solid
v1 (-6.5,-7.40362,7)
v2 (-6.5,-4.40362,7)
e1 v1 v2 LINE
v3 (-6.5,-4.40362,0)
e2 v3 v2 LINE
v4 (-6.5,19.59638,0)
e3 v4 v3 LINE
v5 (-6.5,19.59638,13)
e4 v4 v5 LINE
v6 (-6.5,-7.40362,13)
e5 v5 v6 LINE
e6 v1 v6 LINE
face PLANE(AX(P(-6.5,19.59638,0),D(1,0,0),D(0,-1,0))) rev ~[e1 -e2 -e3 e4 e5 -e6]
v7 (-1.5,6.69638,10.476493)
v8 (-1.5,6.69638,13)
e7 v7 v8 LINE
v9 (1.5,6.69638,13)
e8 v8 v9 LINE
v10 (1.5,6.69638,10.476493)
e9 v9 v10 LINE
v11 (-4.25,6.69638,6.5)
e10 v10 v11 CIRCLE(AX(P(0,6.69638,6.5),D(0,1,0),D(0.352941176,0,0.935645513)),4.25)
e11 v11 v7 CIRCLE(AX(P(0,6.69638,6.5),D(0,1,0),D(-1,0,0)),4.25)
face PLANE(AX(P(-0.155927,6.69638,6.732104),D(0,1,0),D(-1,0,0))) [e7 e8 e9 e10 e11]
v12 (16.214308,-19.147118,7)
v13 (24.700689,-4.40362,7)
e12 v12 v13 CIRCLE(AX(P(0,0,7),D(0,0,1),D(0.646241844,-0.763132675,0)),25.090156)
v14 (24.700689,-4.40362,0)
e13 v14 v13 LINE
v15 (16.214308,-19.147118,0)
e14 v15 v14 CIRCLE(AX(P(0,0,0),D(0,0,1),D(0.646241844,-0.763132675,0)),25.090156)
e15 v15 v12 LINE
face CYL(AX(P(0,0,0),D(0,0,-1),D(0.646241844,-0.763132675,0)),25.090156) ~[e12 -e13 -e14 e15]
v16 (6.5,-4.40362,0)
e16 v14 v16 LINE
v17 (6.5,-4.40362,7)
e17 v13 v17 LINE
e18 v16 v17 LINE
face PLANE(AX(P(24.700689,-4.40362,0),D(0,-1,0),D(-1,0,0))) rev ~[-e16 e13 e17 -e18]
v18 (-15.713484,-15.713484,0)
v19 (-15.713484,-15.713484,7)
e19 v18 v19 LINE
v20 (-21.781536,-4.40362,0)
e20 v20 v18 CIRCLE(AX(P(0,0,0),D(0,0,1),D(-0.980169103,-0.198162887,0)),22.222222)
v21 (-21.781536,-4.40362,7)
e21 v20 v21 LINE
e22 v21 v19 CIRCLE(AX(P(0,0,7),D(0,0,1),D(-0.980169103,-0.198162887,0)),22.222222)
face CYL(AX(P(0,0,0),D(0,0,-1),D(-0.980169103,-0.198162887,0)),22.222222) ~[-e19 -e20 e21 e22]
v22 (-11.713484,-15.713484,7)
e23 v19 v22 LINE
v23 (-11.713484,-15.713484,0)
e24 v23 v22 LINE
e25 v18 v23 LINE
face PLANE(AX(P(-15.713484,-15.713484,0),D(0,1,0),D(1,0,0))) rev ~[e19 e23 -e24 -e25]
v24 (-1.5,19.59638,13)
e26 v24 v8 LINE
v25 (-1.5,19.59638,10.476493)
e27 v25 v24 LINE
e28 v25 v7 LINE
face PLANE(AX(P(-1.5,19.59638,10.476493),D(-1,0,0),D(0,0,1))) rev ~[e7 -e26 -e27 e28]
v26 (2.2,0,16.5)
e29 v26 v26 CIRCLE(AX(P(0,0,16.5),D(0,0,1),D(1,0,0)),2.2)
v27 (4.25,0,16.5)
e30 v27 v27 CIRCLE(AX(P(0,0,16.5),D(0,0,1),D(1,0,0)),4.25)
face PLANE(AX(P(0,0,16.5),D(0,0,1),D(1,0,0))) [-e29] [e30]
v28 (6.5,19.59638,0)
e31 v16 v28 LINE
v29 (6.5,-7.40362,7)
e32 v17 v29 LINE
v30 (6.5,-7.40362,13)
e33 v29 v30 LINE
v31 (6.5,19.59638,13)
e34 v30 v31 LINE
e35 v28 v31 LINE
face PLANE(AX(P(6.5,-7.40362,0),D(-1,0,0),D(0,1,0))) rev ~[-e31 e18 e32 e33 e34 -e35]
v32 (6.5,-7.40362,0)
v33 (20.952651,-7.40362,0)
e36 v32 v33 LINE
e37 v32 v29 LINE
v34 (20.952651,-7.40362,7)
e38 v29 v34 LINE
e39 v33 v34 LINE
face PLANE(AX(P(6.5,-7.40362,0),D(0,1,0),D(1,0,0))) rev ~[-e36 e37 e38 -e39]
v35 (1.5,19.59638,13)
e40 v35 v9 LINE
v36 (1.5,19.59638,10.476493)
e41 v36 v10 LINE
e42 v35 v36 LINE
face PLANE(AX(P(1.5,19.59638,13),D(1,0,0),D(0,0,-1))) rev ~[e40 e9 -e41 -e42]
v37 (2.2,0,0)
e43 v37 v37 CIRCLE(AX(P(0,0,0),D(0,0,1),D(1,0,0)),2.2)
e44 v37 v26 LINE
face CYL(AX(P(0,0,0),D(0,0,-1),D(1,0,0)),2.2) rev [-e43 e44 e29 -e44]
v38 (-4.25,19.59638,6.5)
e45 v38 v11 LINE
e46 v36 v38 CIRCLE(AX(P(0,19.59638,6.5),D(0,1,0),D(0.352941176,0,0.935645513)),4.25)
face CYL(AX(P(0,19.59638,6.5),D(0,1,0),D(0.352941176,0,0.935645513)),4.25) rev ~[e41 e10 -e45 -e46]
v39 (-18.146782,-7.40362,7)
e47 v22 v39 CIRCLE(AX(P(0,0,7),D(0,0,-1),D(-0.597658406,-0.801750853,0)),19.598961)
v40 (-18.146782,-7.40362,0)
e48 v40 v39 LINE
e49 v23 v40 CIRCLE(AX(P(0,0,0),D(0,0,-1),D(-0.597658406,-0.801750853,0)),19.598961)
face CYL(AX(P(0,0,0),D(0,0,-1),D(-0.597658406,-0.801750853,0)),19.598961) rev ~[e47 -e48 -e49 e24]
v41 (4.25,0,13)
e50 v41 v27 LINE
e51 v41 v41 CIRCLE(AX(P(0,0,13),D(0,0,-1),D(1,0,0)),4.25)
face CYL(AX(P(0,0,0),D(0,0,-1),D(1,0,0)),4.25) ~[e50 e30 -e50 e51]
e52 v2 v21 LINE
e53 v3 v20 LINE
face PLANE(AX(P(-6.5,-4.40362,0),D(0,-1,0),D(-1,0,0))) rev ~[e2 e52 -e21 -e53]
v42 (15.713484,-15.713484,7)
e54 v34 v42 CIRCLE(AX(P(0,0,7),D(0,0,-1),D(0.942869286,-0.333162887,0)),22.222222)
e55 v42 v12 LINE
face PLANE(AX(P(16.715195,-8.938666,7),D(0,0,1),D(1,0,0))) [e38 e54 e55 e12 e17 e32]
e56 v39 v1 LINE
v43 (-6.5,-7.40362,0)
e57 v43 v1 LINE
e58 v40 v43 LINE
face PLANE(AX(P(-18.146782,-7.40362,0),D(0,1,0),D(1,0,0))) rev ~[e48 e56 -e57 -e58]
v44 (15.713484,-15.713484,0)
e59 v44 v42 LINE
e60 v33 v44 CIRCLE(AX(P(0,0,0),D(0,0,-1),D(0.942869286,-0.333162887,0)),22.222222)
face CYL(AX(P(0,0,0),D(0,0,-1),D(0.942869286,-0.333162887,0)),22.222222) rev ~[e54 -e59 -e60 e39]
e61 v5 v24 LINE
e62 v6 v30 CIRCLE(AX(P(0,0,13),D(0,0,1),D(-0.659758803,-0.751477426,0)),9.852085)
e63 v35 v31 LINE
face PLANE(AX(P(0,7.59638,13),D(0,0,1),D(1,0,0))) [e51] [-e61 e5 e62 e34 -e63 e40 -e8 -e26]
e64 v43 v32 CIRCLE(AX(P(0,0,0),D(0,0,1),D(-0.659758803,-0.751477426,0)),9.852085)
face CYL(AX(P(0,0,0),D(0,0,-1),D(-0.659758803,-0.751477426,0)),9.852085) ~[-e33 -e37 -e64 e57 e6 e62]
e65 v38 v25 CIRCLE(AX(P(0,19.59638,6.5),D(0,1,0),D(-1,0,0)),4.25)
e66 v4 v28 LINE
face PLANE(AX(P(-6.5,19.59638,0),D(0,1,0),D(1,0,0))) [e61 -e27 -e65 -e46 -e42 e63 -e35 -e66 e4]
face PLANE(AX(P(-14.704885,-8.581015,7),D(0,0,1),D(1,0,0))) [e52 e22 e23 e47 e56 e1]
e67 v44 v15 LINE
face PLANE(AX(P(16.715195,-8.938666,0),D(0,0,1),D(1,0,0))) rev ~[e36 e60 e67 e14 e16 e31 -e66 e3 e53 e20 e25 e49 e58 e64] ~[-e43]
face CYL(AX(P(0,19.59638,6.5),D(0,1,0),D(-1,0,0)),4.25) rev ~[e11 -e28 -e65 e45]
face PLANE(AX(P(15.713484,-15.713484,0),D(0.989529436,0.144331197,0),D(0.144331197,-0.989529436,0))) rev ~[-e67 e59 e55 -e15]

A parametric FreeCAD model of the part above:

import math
import FreeCAD as App
import Part
import Sketcher

doc = App.newDocument("Part")
body = doc.addObject("PartDesign::Body", "Body")

sketch1 = body.newObject("Sketcher::SketchObject", "Sketch")
sketch1.AttachmentSupport = (doc.getObject("XY_Plane"), [""])
sketch1.MapMode = "FlatFace"
sketch1.addGeometry([
    Part.LineSegment(App.Vector(-6, 20, 0), App.Vector(-6, -7, 0)),
    Part.ArcOfCircle(Part.Circle(App.Vector(0, 0, 0), App.Vector(0, 0, 1), 10), math.radians(-131), math.radians(-49)),
    Part.LineSegment(App.Vector(6, -7, 0), App.Vector(6, 20, 0)),
    Part.LineSegment(App.Vector(6, 20, 0), App.Vector(-6, 20, 0)),
], False)
sketch1.addConstraint([
    Sketcher.Constraint("Coincident", 0, 2, 1, 1),
    Sketcher.Constraint("Coincident", 1, 2, 2, 1),
    Sketcher.Constraint("Coincident", 2, 2, 3, 1),
    Sketcher.Constraint("Coincident", 3, 2, 0, 1),
    Sketcher.Constraint("Vertical", 0),
    Sketcher.Constraint("Vertical", 2),
    Sketcher.Constraint("Horizontal", 3),
    Sketcher.Constraint("Coincident", 1, 3, -1, 1),
    Sketcher.Constraint("Horizontal", 0, 2, 1, 2),
    Sketcher.Constraint("DistanceX", 3, 2, 3, 1, 13.0),
    Sketcher.Constraint("DistanceY", 0, 2, 0, 1, 27.0),
    Sketcher.Constraint("Radius", 1, 9.852085),
])
pad1 = body.newObject("PartDesign::Pad", "Pad")
pad1.Profile = sketch1
pad1.Length = 13

sketch2 = body.newObject("Sketcher::SketchObject", "Sketch001")
sketch2.AttachmentSupport = (doc.getObject("XY_Plane"), [""])
sketch2.MapMode = "FlatFace"
sketch2.addGeometry(Part.Circle(App.Vector(0, 0, 0), App.Vector(0, 0, 1), 2.2), False)
sketch2.addConstraint([
    Sketcher.Constraint("Coincident", 0, 3, -1, 1),
    Sketcher.Constraint("Diameter", 0, 4.4),
])
pocket1 = body.newObject("PartDesign::Pocket", "Pocket")
pocket1.Profile = sketch2
pocket1.Type = "ThroughAll"
pocket1.Reversed = True

sketch3 = body.newObject("Sketcher::SketchObject", "Sketch002")
sketch3.AttachmentSupport = (doc.getObject("XZ_Plane"), [""])
sketch3.MapMode = "FlatFace"
sketch3.AttachmentOffset = App.Placement(App.Vector(0, 0, -19.59638), App.Rotation())
sketch3.addGeometry([
    Part.ArcOfCircle(Part.Circle(App.Vector(0, 6.5, 0), App.Vector(0, 0, 1), 4.2), math.radians(180), math.radians(429)),
    Part.ArcOfCircle(Part.Circle(App.Vector(0, 6.5, 0), App.Vector(0, 0, 1), 4.2), math.radians(111), math.radians(180)),
    Part.LineSegment(App.Vector(-1.5, 10.5, 0), App.Vector(-1.5, 13, 0)),
    Part.LineSegment(App.Vector(-1.5, 13, 0), App.Vector(1.5, 13, 0)),
    Part.LineSegment(App.Vector(1.5, 13, 0), App.Vector(1.5, 10.5, 0)),
], False)
sketch3.addConstraint([
    Sketcher.Constraint("Tangent", 0, 1, 1, 2),
    Sketcher.Constraint("Coincident", 1, 1, 2, 1),
    Sketcher.Constraint("Coincident", 2, 2, 3, 1),
    Sketcher.Constraint("Coincident", 3, 2, 4, 1),
    Sketcher.Constraint("Coincident", 4, 2, 0, 2),
    Sketcher.Constraint("Vertical", 2),
    Sketcher.Constraint("Horizontal", 3),
    Sketcher.Constraint("Vertical", 4),
    Sketcher.Constraint("Equal", 0, 1),
    Sketcher.Constraint("Symmetric", 1, 1, 4, 2, -2),
    Sketcher.Constraint("Horizontal", 1, 3, 0, 1),
    Sketcher.Constraint("DistanceX", 3, 1, 3, 2, 3.0),
    Sketcher.Constraint("Radius", 0, 4.25),
    Sketcher.Constraint("DistanceY", -1, 1, 2, 2, 13.0),
    Sketcher.Constraint("DistanceY", -1, 1, 0, 3, 6.5),
])
pocket2 = body.newObject("PartDesign::Pocket", "Pocket001")
pocket2.Profile = sketch3
pocket2.Length = 12.9
pocket2.Reversed = True

sketch4 = body.newObject("Sketcher::SketchObject", "Sketch003")
sketch4.AttachmentSupport = (doc.getObject("XY_Plane"), [""])
sketch4.MapMode = "FlatFace"
sketch4.addGeometry([
    Part.LineSegment(App.Vector(24.7, -4.4, 0), App.Vector(6.5, -4.4, 0)),
    Part.LineSegment(App.Vector(6.5, -4.4, 0), App.Vector(6.5, -7.4, 0)),
    Part.LineSegment(App.Vector(6.5, -7.4, 0), App.Vector(21, -7.4, 0)),
    Part.ArcOfCircle(Part.Circle(App.Vector(0, 0, 0), App.Vector(0, 0, 1), 22.2), math.radians(-45), math.radians(-19)),
    Part.LineSegment(App.Vector(15.7, -15.7, 0), App.Vector(16.2, -19.1, 0)),
    Part.ArcOfCircle(Part.Circle(App.Vector(0, 0, 0), App.Vector(0, 0, 1), 25.1), math.radians(-50), math.radians(-10)),
    Part.LineSegment(App.Vector(-6.5, -7.4, 0), App.Vector(-6.5, -4.4, 0)),
    Part.LineSegment(App.Vector(-6.5, -4.4, 0), App.Vector(-21.8, -4.4, 0)),
    Part.ArcOfCircle(Part.Circle(App.Vector(0, 0, 0), App.Vector(0, 0, 1), 22.2), math.radians(-169), math.radians(-135)),
    Part.LineSegment(App.Vector(-15.7, -15.7, 0), App.Vector(-11.7, -15.7, 0)),
    Part.ArcOfCircle(Part.Circle(App.Vector(0, 0, 0), App.Vector(0, 0, 1), 19.6), math.radians(-158), math.radians(-127)),
    Part.LineSegment(App.Vector(-18.1, -7.4, 0), App.Vector(-6.5, -7.4, 0)),
], False)
sketch4.addConstraint([
    Sketcher.Constraint("Coincident", 0, 2, 1, 1),
    Sketcher.Constraint("Coincident", 1, 2, 2, 1),
    Sketcher.Constraint("Coincident", 2, 2, 3, 2),
    Sketcher.Constraint("Coincident", 3, 1, 4, 1),
    Sketcher.Constraint("Coincident", 4, 2, 5, 1),
    Sketcher.Constraint("Coincident", 5, 2, 0, 1),
    Sketcher.Constraint("Coincident", 6, 2, 7, 1),
    Sketcher.Constraint("Coincident", 7, 2, 8, 1),
    Sketcher.Constraint("Coincident", 8, 2, 9, 1),
    Sketcher.Constraint("Coincident", 9, 2, 10, 2),
    Sketcher.Constraint("Coincident", 10, 1, 11, 1),
    Sketcher.Constraint("Coincident", 11, 2, 6, 1),
    Sketcher.Constraint("Horizontal", 0),
    Sketcher.Constraint("Vertical", 1),
    Sketcher.Constraint("Horizontal", 2),
    Sketcher.Constraint("Vertical", 6),
    Sketcher.Constraint("Horizontal", 7),
    Sketcher.Constraint("Horizontal", 9),
    Sketcher.Constraint("Horizontal", 11),
    Sketcher.Constraint("Coincident", 3, 3, -1, 1),
    Sketcher.Constraint("Coincident", 5, 3, -1, 1),
    Sketcher.Constraint("Coincident", 8, 3, -1, 1),
    Sketcher.Constraint("Coincident", 10, 3, -1, 1),
    Sketcher.Constraint("Equal", 3, 8),
    Sketcher.Constraint("Symmetric", 0, 2, 6, 2, -2),
    Sketcher.Constraint("Horizontal", 3, 1, 8, 2),
    Sketcher.Constraint("Horizontal", 2, 2, 10, 1),
    Sketcher.Constraint("DistanceX", 9, 1, 9, 2, 4.0),
    Sketcher.Constraint("DistanceY", 1, 2, 1, 1, 3.0),
    Sketcher.Constraint("DistanceX", 6, 2, 0, 2, 13.0),
    Sketcher.Constraint("Radius", 10, 19.598961),
    Sketcher.Constraint("Radius", 3, 22.222222),
    Sketcher.Constraint("Radius", 5, 25.090156),
    Sketcher.Constraint("DistanceX", 0, 2, 0, 1, 18.200689),
    Sketcher.Constraint("DistanceX", -1, 1, 4, 2, 16.214308),
])
pad2 = body.newObject("PartDesign::Pad", "Pad001")
pad2.Profile = sketch4
pad2.Length = 7

sketch5 = body.newObject("Sketcher::SketchObject", "Sketch004")
sketch5.AttachmentSupport = (doc.getObject("XY_Plane"), [""])
sketch5.MapMode = "FlatFace"
sketch5.addGeometry([
    Part.Circle(App.Vector(0, 0, 0), App.Vector(0, 0, 1), 4.2),
    Part.Circle(App.Vector(0, 0, 0), App.Vector(0, 0, 1), 2.2),
], False)
sketch5.addConstraint([
    Sketcher.Constraint("Coincident", 0, 3, -1, 1),
    Sketcher.Constraint("Coincident", 1, 3, -1, 1),
    Sketcher.Constraint("Diameter", 0, 8.5),
    Sketcher.Constraint("Diameter", 1, 4.4),
])
pad3 = body.newObject("PartDesign::Pad", "Pad002")
pad3.Profile = sketch5
pad3.Length = 16.5

doc.recompute()
